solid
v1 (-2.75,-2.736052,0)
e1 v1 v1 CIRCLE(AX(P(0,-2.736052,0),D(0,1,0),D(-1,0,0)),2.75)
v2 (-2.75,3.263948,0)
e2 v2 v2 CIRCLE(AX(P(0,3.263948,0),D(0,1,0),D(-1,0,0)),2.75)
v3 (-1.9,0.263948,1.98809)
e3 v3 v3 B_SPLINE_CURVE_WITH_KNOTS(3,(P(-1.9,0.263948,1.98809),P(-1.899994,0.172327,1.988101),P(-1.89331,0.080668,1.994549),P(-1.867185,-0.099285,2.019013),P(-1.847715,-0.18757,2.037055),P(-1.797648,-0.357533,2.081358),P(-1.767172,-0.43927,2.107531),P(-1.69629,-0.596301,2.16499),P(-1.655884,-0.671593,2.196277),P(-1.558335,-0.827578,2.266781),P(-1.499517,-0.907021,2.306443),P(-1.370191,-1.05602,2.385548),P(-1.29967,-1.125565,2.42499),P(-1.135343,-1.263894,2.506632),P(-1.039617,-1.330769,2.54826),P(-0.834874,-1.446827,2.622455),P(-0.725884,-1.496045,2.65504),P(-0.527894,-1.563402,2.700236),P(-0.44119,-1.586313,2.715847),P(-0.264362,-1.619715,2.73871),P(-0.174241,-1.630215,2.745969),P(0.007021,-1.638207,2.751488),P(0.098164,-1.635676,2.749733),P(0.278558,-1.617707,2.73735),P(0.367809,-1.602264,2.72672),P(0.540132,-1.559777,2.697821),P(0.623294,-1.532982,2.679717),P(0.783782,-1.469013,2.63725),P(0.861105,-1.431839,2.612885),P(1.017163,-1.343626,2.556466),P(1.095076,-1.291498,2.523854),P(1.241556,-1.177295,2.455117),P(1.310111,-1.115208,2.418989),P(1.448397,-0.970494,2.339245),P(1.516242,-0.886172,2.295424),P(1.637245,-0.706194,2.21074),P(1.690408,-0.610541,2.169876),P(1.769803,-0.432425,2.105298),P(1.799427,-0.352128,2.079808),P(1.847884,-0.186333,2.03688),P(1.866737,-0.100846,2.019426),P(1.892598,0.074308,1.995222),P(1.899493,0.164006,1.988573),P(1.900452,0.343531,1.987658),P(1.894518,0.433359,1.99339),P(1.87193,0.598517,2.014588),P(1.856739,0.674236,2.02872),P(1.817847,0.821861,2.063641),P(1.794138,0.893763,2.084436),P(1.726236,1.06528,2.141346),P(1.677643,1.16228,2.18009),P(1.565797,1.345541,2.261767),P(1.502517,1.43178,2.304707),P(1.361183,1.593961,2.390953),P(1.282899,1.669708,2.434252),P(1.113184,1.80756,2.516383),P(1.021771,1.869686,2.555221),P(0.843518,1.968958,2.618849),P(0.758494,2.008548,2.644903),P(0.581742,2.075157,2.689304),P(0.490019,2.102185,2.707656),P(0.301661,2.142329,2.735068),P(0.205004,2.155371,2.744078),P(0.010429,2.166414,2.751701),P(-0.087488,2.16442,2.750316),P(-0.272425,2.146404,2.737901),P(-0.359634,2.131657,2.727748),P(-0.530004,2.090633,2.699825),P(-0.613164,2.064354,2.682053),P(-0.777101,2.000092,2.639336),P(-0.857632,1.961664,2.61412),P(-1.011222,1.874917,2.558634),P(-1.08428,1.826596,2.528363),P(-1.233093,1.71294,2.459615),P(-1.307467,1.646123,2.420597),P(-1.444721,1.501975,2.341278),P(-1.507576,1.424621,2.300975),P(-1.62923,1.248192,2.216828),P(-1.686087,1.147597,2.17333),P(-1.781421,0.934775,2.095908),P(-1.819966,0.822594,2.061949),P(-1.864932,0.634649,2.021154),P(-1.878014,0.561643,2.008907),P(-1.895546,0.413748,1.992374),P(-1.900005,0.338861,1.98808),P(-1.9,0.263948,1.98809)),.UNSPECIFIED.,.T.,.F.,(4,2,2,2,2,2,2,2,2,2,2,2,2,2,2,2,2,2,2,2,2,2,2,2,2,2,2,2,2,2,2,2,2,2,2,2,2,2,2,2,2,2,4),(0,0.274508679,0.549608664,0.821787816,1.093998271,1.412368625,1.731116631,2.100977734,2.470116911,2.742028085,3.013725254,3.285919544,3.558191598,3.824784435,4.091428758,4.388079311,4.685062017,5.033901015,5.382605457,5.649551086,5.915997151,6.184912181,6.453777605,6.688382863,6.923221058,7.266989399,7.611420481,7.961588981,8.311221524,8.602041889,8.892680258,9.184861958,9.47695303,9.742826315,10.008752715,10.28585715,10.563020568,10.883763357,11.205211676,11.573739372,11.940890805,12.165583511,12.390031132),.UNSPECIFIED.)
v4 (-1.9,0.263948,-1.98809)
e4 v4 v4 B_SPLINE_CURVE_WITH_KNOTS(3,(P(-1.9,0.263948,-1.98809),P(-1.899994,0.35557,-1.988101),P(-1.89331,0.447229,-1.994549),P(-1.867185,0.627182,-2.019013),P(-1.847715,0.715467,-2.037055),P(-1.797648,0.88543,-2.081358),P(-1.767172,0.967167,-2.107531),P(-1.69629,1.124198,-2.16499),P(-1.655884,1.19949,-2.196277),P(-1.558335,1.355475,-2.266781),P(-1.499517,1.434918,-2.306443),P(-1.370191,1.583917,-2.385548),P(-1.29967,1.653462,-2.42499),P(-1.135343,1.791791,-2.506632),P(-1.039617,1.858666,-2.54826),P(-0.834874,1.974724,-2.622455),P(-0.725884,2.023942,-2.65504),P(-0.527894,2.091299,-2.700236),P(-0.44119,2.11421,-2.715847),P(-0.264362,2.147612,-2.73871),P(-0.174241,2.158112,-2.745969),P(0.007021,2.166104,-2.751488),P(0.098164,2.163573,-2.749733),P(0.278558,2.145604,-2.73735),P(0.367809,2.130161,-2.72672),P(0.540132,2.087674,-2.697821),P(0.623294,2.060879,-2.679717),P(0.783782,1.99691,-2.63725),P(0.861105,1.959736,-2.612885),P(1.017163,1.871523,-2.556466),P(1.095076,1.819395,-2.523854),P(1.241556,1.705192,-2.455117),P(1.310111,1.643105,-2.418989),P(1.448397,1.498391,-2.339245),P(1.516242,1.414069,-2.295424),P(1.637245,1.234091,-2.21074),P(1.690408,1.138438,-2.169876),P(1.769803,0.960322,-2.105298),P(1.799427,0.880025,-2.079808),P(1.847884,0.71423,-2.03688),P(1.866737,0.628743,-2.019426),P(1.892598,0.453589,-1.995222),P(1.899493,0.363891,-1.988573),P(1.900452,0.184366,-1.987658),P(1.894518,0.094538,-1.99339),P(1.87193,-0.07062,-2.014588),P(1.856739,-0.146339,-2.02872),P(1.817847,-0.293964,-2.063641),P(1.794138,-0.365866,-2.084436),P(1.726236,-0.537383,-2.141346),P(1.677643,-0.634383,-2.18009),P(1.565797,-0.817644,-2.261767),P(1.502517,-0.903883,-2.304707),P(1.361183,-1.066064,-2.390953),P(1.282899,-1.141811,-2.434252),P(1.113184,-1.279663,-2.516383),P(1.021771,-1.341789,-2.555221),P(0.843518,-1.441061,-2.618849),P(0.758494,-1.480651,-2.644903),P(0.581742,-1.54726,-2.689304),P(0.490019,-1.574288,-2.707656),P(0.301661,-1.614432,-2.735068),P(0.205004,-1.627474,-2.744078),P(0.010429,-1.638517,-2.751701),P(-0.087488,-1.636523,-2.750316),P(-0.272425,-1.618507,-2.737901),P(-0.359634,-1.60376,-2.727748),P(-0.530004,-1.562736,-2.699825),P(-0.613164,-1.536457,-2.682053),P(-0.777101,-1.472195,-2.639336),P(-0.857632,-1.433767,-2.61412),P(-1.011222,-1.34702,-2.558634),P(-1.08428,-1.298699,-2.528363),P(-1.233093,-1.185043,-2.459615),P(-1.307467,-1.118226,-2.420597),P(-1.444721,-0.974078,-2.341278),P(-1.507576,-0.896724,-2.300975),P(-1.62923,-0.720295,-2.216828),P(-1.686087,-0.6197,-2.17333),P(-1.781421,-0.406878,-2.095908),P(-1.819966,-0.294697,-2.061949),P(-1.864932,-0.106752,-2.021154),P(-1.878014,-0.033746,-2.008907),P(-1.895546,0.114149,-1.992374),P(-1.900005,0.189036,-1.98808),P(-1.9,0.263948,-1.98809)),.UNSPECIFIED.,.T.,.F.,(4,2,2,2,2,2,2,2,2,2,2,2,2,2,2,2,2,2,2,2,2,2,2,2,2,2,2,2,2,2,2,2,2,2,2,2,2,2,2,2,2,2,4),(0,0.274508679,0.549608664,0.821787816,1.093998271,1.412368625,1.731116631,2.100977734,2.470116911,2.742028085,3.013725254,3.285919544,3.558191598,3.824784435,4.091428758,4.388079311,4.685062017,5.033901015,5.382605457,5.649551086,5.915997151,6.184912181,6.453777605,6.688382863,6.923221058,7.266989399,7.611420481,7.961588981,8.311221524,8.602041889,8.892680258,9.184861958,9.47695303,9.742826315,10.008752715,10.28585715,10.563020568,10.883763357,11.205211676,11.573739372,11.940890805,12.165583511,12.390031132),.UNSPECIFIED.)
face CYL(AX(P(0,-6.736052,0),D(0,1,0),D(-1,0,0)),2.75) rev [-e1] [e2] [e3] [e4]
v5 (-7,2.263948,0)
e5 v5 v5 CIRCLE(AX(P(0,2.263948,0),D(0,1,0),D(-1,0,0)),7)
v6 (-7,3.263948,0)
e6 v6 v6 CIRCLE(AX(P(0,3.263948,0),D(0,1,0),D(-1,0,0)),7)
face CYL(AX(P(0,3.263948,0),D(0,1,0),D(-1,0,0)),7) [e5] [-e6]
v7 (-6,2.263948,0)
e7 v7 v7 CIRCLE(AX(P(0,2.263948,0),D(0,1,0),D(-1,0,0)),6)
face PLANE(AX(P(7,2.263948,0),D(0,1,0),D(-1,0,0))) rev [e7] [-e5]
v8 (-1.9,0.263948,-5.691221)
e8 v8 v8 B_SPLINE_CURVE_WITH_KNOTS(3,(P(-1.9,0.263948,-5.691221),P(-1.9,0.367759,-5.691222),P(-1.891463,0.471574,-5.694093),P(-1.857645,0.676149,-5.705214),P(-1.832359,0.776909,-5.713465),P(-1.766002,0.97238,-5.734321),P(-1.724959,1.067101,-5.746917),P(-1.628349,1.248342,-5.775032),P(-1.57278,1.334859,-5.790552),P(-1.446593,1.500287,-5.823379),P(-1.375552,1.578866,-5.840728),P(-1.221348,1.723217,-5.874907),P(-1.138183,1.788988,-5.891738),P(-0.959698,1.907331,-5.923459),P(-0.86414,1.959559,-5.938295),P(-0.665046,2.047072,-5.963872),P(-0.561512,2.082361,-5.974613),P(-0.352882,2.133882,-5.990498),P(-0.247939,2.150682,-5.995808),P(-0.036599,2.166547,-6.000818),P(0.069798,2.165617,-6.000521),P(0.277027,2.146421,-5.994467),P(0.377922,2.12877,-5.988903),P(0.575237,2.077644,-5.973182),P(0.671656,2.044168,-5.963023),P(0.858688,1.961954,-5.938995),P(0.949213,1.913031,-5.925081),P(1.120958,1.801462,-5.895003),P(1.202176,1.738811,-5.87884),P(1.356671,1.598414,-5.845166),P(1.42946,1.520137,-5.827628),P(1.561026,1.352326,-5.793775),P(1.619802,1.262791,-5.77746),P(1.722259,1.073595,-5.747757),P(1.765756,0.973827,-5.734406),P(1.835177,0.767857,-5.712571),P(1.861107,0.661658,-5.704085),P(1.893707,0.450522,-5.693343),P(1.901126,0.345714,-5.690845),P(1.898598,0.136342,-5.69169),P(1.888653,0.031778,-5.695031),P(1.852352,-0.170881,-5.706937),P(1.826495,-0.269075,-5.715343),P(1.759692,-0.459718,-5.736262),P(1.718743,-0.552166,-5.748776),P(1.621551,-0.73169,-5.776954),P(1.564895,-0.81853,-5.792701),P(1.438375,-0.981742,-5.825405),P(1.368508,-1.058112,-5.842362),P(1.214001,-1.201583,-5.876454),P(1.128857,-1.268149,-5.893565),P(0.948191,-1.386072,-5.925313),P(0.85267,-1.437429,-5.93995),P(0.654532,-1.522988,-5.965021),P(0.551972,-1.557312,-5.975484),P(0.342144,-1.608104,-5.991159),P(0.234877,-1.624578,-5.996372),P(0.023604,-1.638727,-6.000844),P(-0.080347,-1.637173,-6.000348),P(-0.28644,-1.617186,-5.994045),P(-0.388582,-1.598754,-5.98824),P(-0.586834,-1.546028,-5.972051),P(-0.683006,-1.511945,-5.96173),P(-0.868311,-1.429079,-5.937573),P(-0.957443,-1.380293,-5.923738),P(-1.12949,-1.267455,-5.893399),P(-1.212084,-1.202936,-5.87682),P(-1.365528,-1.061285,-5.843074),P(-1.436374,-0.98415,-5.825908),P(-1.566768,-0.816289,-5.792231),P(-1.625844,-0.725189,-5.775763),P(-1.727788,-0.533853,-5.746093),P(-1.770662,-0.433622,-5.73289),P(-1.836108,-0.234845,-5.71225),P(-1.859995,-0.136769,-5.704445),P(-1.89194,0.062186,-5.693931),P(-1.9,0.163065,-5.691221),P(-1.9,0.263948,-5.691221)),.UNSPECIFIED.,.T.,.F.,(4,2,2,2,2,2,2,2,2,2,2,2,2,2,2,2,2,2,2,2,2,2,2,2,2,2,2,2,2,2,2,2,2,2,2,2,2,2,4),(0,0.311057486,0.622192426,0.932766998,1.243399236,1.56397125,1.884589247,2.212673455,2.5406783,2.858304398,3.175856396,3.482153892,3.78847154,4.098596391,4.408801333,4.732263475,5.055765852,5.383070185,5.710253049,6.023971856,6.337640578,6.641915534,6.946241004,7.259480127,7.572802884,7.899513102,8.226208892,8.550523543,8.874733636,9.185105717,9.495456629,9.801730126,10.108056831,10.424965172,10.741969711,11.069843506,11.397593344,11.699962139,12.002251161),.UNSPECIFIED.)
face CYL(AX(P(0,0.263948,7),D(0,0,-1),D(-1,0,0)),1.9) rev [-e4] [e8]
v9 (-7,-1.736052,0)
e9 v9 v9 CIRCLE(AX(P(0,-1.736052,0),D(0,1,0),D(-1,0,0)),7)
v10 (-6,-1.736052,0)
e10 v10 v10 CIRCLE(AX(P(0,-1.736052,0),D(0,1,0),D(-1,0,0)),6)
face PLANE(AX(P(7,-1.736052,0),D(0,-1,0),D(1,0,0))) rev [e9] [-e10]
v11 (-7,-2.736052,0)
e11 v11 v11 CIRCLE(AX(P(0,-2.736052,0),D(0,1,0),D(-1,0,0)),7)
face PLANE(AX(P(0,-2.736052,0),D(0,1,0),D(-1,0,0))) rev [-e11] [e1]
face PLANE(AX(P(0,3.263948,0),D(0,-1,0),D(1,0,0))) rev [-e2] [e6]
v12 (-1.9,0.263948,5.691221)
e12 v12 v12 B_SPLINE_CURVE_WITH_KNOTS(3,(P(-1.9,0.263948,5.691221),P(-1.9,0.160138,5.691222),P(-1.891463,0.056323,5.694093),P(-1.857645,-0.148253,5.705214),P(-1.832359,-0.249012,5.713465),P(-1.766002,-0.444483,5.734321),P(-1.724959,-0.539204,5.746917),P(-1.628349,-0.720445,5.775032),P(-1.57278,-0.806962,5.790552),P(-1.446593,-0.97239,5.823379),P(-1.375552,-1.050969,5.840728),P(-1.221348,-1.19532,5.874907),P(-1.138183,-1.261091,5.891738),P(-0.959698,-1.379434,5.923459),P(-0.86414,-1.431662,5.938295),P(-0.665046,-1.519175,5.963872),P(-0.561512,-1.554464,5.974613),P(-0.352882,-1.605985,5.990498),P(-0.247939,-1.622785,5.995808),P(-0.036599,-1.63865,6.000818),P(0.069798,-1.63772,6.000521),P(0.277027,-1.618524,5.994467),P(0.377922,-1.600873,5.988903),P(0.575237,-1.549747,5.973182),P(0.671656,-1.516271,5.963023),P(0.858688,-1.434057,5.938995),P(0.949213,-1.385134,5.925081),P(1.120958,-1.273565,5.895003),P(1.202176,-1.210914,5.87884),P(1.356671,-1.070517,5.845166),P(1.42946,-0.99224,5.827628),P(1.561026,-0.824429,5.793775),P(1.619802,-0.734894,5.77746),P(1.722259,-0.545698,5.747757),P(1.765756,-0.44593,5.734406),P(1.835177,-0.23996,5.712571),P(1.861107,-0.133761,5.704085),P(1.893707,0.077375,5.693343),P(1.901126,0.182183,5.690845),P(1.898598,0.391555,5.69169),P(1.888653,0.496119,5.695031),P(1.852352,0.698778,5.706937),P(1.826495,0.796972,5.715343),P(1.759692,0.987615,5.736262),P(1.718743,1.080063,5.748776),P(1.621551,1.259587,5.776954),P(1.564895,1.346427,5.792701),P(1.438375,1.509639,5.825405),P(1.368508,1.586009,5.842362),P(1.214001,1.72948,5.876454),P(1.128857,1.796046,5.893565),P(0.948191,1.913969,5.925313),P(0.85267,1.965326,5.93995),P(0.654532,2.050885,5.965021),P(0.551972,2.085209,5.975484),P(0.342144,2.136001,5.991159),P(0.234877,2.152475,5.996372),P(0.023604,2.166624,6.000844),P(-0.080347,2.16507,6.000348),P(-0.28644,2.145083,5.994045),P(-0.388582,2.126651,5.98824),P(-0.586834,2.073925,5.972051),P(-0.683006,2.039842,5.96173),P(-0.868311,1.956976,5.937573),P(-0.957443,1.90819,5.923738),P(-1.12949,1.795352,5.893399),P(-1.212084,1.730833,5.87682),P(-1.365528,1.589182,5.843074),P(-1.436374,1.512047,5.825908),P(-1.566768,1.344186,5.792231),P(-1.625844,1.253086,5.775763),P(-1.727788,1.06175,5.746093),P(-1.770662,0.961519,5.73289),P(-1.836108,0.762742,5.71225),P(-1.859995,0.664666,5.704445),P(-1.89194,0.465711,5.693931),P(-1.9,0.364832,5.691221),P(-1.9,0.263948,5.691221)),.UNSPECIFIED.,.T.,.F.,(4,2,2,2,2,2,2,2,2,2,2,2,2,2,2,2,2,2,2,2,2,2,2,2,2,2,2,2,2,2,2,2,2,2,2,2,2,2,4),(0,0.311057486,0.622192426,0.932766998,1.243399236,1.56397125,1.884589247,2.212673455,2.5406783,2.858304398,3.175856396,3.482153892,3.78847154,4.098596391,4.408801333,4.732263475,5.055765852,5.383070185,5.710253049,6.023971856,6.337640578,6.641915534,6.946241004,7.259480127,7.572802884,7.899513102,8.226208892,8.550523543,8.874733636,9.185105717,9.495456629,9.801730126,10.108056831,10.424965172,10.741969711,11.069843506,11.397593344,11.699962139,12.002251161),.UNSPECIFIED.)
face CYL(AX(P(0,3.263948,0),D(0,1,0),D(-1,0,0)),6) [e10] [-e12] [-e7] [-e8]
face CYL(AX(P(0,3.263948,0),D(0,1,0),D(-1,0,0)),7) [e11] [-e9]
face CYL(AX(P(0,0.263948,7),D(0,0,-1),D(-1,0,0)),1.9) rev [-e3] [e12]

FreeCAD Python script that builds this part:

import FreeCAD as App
import Part
import Sketcher

V = App.Vector


def add_polygon(sketch, points):
    """Adds a closed chain of lines whose ends are joined by coincident constraints."""
    first, n = sketch.GeometryCount, len(points)
    for a, b in zip(points, points[1:] + points[:1]):
        sketch.addGeometry(Part.LineSegment(App.Vector(*a, 0), App.Vector(*b, 0)), False)
    for i in range(n):
        sketch.addConstraint(Sketcher.Constraint("Coincident", first + i, 2, first + (i + 1) % n, 1))

doc = App.newDocument("Part")
body = doc.addObject("PartDesign::Body", "Body")

sketch1 = body.newObject("Sketcher::SketchObject", "Sketch")
sketch1.AttachmentSupport = (doc.getObject("XY_Plane"), [""])
sketch1.MapMode = "FlatFace"
add_polygon(sketch1, [(7, 3.3), (0, 3.3), (0, -2.7), (7, -2.7), (7, -1.7), (6, -1.7), (6, 2.3), (7, 2.3)])
sketch1.addConstraint(Sketcher.Constraint("Horizontal", 0))
sketch1.addConstraint(Sketcher.Constraint("Vertical", 1))
sketch1.addConstraint(Sketcher.Constraint("Horizontal", 2))
sketch1.addConstraint(Sketcher.Constraint("Vertical", 3))
sketch1.addConstraint(Sketcher.Constraint("Horizontal", 4))
sketch1.addConstraint(Sketcher.Constraint("Vertical", 5))
sketch1.addConstraint(Sketcher.Constraint("Horizontal", 6))
sketch1.addConstraint(Sketcher.Constraint("Vertical", 7))
sketch1.addConstraint(Sketcher.Constraint("PointOnObject", 0, 2, -2))
sketch1.addConstraint(Sketcher.Constraint("Vertical", 3, 2, 6, 2))
sketch1.addConstraint(Sketcher.Constraint("Equal", 6, 3))
sketch1.addConstraint(Sketcher.Constraint("Equal", 3, 7))
sketch1.addConstraint(Sketcher.Constraint("DistanceX", 0, 2, 0, 1, 7.0))
sketch1.addConstraint(Sketcher.Constraint("DistanceX", 4, 2, 4, 1, 1.0))
sketch1.addConstraint(Sketcher.Constraint("DistanceY", 1, 2, 1, 1, 6.0))
sketch1.addConstraint(Sketcher.Constraint("DistanceY", -1, 1, 0, 2, 3.263948))
revolution = body.newObject("PartDesign::Revolution", "Revolution")
revolution.Profile = sketch1
revolution.ReferenceAxis = (sketch1, ["V_Axis"])
revolution.Angle = 360

sketch2 = body.newObject("Sketcher::SketchObject", "Sketch001")
sketch2.AttachmentSupport = (doc.getObject("XY_Plane"), [""])
sketch2.MapMode = "FlatFace"
sketch2.addGeometry(Part.Circle(V(0, 0.3, 0), V(0, 0, 1), 1.9), False)
sketch2.addConstraint(Sketcher.Constraint("PointOnObject", 0, 3, -2))
sketch2.addConstraint(Sketcher.Constraint("Diameter", 0, 3.8))
sketch2.addConstraint(Sketcher.Constraint("DistanceY", -1, 1, 0, 3, 0.263948))
pocket1 = body.newObject("PartDesign::Pocket", "Pocket")
pocket1.Profile = sketch2
pocket1.Type = "ThroughAll"
pocket1.Midplane = True

sketch3 = body.newObject("Sketcher::SketchObject", "Sketch002")
sketch3.AttachmentSupport = (doc.getObject("XZ_Plane"), [""])
sketch3.MapMode = "FlatFace"
sketch3.AttachmentOffset = App.Placement(V(0, 0, -3.263948), App.Rotation())
sketch3.addGeometry(Part.Circle(V(0, 0, 0), V(0, 0, 1), 2.8), False)
sketch3.addConstraint(Sketcher.Constraint("Coincident", 0, 3, -1, 1))
sketch3.addConstraint(Sketcher.Constraint("Diameter", 0, 5.5))
pocket2 = body.newObject("PartDesign::Pocket", "Pocket001")
pocket2.Profile = sketch3
pocket2.Length = 10
pocket2.Reversed = True

doc.recompute()
